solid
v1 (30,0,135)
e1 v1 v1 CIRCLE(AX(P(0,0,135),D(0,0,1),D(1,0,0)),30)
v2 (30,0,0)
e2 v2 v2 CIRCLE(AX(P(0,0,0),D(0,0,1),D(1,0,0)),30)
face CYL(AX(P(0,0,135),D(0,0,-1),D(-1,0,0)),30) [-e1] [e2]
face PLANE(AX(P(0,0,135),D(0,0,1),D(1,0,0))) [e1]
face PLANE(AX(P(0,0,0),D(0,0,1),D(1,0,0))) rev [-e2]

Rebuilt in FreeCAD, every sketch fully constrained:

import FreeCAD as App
import Part
import Sketcher

doc = App.newDocument("Part")
body = doc.addObject("PartDesign::Body", "Body")

# Sketch on XY plane
sketch1 = body.newObject("Sketcher::SketchObject", "Sketch")
sketch1.AttachmentSupport = (doc.getObject("XY_Plane"), [""])
sketch1.MapMode = "FlatFace"
sketch1.addGeometry(Part.Circle(App.Vector(0, 0, 0), App.Vector(0, 0, 1), 30), False)
sketch1.addConstraint(Sketcher.Constraint("Coincident", 0, 3, -1, 1))
sketch1.addConstraint(Sketcher.Constraint("Diameter", 0, 60.0))
pad1 = body.newObject("PartDesign::Pad", "Pad")
pad1.Profile = sketch1
pad1.Length = 135

doc.recompute()
